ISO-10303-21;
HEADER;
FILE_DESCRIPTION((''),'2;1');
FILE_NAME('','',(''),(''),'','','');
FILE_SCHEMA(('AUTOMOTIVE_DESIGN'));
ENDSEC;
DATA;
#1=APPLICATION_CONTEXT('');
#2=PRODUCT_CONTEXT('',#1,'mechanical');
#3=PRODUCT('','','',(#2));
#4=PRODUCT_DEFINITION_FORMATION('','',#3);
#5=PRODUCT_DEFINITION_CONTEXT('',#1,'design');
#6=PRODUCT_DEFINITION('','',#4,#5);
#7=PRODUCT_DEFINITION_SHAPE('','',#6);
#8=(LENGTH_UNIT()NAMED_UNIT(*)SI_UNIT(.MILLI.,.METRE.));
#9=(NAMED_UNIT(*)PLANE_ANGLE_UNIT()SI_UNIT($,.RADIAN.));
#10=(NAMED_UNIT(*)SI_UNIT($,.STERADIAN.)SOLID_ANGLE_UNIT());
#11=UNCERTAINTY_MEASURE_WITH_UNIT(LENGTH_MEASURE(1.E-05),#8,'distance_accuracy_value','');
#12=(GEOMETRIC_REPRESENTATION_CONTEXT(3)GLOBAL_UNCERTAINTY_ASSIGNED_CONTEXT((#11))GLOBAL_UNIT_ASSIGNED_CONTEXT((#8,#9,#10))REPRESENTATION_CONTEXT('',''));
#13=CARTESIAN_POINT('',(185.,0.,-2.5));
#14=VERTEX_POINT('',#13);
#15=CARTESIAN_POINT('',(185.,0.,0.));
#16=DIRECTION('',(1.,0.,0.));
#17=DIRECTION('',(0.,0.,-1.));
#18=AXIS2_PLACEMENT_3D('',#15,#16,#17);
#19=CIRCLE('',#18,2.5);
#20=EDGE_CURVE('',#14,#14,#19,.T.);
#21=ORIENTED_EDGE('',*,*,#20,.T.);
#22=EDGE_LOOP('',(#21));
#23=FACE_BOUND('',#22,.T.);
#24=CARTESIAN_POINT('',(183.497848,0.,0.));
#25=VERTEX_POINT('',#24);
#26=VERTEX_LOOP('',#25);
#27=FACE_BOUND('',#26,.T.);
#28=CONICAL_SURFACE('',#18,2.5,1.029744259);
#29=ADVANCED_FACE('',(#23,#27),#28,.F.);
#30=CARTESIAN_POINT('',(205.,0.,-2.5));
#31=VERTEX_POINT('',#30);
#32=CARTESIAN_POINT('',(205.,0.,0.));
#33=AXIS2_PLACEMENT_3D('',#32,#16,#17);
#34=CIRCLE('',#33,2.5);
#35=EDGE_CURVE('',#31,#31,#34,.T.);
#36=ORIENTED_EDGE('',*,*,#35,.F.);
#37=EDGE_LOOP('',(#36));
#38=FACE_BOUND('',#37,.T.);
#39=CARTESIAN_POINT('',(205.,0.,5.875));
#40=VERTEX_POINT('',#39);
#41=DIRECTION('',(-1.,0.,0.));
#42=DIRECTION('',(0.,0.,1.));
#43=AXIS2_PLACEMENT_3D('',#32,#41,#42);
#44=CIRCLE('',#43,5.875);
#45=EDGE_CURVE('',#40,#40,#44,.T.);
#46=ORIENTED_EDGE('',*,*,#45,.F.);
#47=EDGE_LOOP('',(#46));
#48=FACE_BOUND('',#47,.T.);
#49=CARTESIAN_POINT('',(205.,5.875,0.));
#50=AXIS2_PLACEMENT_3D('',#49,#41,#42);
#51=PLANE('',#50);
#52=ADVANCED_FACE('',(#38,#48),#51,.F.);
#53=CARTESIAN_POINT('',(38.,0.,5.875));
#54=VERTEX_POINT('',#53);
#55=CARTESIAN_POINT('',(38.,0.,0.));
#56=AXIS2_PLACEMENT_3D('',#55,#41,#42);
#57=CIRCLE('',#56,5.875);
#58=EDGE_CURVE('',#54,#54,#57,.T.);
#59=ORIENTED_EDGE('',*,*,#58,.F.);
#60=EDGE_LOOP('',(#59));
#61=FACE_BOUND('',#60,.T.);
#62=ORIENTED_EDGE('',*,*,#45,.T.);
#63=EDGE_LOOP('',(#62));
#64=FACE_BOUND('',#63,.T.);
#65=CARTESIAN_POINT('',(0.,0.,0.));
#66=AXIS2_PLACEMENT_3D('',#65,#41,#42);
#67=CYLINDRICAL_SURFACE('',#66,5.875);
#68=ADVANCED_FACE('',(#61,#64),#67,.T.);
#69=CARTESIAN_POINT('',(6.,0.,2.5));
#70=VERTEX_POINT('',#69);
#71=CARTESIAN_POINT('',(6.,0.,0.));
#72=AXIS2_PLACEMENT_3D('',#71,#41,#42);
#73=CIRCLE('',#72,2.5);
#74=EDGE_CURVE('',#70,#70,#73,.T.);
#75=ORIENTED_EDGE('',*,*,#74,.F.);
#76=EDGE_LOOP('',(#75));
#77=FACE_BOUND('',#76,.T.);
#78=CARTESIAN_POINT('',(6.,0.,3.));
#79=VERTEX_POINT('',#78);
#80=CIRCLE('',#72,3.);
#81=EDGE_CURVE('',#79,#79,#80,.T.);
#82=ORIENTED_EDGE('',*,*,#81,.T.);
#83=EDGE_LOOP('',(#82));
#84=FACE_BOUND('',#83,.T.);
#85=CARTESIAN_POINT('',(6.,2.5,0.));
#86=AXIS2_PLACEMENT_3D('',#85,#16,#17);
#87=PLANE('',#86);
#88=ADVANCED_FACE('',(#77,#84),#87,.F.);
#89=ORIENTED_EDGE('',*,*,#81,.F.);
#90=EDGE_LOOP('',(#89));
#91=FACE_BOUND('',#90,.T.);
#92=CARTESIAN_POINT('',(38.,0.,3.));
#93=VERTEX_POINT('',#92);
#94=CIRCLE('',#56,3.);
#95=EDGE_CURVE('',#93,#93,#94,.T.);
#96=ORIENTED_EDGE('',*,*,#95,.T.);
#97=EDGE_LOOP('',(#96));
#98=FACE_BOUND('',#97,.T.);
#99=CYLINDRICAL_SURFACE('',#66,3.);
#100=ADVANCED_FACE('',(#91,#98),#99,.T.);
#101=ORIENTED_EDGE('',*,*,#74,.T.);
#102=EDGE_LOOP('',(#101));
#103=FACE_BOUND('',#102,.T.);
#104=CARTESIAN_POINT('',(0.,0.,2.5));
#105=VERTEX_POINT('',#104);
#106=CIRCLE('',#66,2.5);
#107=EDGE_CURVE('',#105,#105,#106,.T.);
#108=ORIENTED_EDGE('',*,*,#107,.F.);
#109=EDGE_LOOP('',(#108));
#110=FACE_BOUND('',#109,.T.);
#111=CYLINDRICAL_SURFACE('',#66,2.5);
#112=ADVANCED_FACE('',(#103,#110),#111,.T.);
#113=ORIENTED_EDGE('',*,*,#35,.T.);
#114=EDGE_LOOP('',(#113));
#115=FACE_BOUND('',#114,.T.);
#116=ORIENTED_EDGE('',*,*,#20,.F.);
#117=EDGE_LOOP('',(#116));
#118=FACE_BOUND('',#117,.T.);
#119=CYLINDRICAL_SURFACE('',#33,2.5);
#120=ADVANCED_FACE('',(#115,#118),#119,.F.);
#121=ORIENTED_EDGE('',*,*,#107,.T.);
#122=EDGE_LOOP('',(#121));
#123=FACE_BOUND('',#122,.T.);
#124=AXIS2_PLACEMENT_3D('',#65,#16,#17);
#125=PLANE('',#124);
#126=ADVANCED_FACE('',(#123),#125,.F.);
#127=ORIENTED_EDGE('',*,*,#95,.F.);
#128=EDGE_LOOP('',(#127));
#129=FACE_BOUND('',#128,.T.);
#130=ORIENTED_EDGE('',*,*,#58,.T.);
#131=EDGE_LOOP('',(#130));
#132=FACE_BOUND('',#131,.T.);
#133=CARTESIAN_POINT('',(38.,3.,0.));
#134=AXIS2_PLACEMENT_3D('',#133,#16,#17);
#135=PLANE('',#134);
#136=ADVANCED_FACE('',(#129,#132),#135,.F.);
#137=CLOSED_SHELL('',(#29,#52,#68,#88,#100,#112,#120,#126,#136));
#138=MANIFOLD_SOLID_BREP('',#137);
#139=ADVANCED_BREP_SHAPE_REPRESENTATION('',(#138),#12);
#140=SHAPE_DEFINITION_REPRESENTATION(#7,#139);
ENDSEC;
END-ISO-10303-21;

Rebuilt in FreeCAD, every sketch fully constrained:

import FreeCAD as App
import Part
import Sketcher
Q = App.Units.Quantity


def add_polygon(sketch, points):
    """Adds a closed chain of lines whose ends are joined by coincident constraints."""
    first, n = sketch.GeometryCount, len(points)
    for a, b in zip(points, points[1:] + points[:1]):
        sketch.addGeometry(Part.LineSegment(App.Vector(*a, 0), App.Vector(*b, 0)), False)
    for i in range(n):
        sketch.addConstraint(Sketcher.Constraint("Coincident", first + i, 2, first + (i + 1) % n, 1))

doc = App.newDocument("Part")
body = doc.addObject("PartDesign::Body", "Body")

sketch1 = body.newObject("Sketcher::SketchObject", "Sketch")
sketch1.AttachmentSupport = (doc.getObject("XY_Plane"), [""])
sketch1.MapMode = "FlatFace"
add_polygon(sketch1, [(0, 2.5), (0, 0), (205, 0), (205, 5.9), (38, 5.9), (38, 3), (6, 3), (6, 2.5)])
sketch1.addConstraint(Sketcher.Constraint("Vertical", 0))
sketch1.addConstraint(Sketcher.Constraint("Horizontal", 1))
sketch1.addConstraint(Sketcher.Constraint("Vertical", 2))
sketch1.addConstraint(Sketcher.Constraint("Horizontal", 3))
sketch1.addConstraint(Sketcher.Constraint("Vertical", 4))
sketch1.addConstraint(Sketcher.Constraint("Horizontal", 5))
sketch1.addConstraint(Sketcher.Constraint("Vertical", 6))
sketch1.addConstraint(Sketcher.Constraint("Horizontal", 7))
sketch1.addConstraint(Sketcher.Constraint("Coincident", 0, 2, -1, 1))
sketch1.addConstraint(Sketcher.Constraint("DistanceX", 1, 1, 1, 2, Q("205 mm")))
sketch1.addConstraint(Sketcher.Constraint("DistanceX", 3, 2, 3, 1, Q("167 mm")))
sketch1.addConstraint(Sketcher.Constraint("DistanceX", 5, 2, 5, 1, Q("32 mm")))
sketch1.addConstraint(Sketcher.Constraint("DistanceY", 0, 2, 0, 1, Q("2.5 mm")))
sketch1.addConstraint(Sketcher.Constraint("DistanceY", 6, 2, 6, 1, Q("0.5 mm")))
sketch1.addConstraint(Sketcher.Constraint("DistanceY", 2, 1, 2, 2, Q("5.875 mm")))
revolution = body.newObject("PartDesign::Revolution", "Revolution")
revolution.Profile = sketch1
revolution.ReferenceAxis = (sketch1, ["H_Axis"])
revolution.Angle = 360

sketch2 = body.newObject("Sketcher::SketchObject", "Sketch001")
sketch2.AttachmentSupport = (doc.getObject("YZ_Plane"), [""])
sketch2.MapMode = "FlatFace"
sketch2.AttachmentOffset = App.Placement(App.Vector(0, 0, 205), App.Rotation())
sketch2.addGeometry(Part.Circle(App.Vector(0, 0, 0), App.Vector(0, 0, 1), 2.5), False)
sketch2.addConstraint(Sketcher.Constraint("Coincident", 0, 3, -1, 1))
sketch2.addConstraint(Sketcher.Constraint("Diameter", 0, Q("5 mm")))
doc.recompute()
hole = body.newObject("PartDesign::Hole", "Hole")
hole.Profile = sketch2
hole.ThreadType = "None"
hole.Diameter = 5
hole.DepthType = "Dimension"
hole.Depth = 20
hole.DrillPoint = "Angled"
hole.DrillPointAngle = 118

doc.recompute()
